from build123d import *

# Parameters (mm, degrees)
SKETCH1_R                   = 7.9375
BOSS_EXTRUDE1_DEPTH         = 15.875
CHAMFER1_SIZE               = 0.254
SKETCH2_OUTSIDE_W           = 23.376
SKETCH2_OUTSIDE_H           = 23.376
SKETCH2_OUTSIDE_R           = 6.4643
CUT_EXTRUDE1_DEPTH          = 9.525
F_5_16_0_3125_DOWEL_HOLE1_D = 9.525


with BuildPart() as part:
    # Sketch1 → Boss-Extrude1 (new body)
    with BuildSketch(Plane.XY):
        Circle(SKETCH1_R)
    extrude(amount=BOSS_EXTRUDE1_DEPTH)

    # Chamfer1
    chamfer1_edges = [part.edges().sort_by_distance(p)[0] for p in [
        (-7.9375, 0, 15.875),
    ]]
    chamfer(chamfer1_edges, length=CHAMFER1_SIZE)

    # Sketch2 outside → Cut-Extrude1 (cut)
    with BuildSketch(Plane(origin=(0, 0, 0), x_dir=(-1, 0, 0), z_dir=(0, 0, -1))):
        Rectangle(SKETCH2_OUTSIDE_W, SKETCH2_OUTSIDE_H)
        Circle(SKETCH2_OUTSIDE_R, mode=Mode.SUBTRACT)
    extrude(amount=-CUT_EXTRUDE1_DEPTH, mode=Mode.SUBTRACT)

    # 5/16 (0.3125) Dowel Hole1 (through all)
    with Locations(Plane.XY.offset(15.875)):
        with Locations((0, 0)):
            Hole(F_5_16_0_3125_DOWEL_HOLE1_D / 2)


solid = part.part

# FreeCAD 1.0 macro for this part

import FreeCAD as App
import Part
import Sketcher

V = App.Vector
Q = App.Units.Quantity


def edges_at(feature, points):
    """Names of the edges that pass closest to the given points."""
    edges = feature.Shape.Edges
    near = lambda p: min(range(len(edges)), key=lambda i: edges[i].distToShape(Part.Vertex(*p))[0])
    return sorted({f"Edge{near(p) + 1}" for p in points})

doc = App.newDocument("Part")
params = doc.addObject("Spreadsheet::Sheet", "Params")
for row, (alias, value) in enumerate([
    ("sketch1_diameter", "0.625 in"),
    ("pad1_length", "0.625 in"),
    ("chamfer_size", "0.01 in"),
    ("sketch2_diameter", "0.509 in"),
    ("pocket1_length", "0.375 in"),
    ("sketch3_diameter", "0.375 in"),
    ("hole_diameter", "0.375 in"),
], start=1):
    params.set(f"A{row}", alias)
    params.set(f"B{row}", "=" + value)
    params.setAlias(f"B{row}", alias)

body = doc.addObject("PartDesign::Body", "Body")

sketch1 = body.newObject("Sketcher::SketchObject", "Sketch")
sketch1.AttachmentSupport = (doc.getObject("XY_Plane"), [""])
sketch1.MapMode = "FlatFace"
sketch1.addGeometry(Part.Circle(V(0, 0, 0), V(0, 0, 1), 8), False)
sketch1.addConstraint([
    Sketcher.Constraint("Coincident", 0, 3, -1, 1),
    Sketcher.Constraint("Diameter", 0, Q("0.625 in")),
])
sketch1.setExpression("Constraints[1]", "Params.sketch1_diameter")
pad1 = body.newObject("PartDesign::Pad", "Pad")
pad1.Profile = sketch1
pad1.setExpression("Length", "Params.pad1_length")
doc.recompute()

chamfer = body.newObject("PartDesign::Chamfer", "Chamfer")
chamfer.Base = (pad1, edges_at(pad1, [(-7.938, 0, 15.875)]))
chamfer.setExpression("Size", "Params.chamfer_size")

sketch2 = body.newObject("Sketcher::SketchObject", "Sketch001")
sketch2.AttachmentSupport = (doc.getObject("XY_Plane"), [""])
sketch2.MapMode = "FlatFace"
sketch2.addGeometry([
    Part.LineSegment(V(12, 12, 0), V(12, -12, 0)),
    Part.LineSegment(V(12, -12, 0), V(-12, -12, 0)),
    Part.LineSegment(V(-12, -12, 0), V(-12, 12, 0)),
    Part.LineSegment(V(-12, 12, 0), V(12, 12, 0)),
    Part.Circle(V(0, 0, 0), V(0, 0, 1), 6),
], False)
sketch2.addConstraint([
    Sketcher.Constraint("Coincident", 0, 2, 1, 1),
    Sketcher.Constraint("Coincident", 1, 2, 2, 1),
    Sketcher.Constraint("Coincident", 2, 2, 3, 1),
    Sketcher.Constraint("Coincident", 3, 2, 0, 1),
    Sketcher.Constraint("Vertical", 0),
    Sketcher.Constraint("Horizontal", 1),
    Sketcher.Constraint("Vertical", 2),
    Sketcher.Constraint("Horizontal", 3),
    Sketcher.Constraint("Coincident", 4, 3, -1, 1),
    Sketcher.Constraint("Symmetric", 0, 2, 2, 2, -1, 1),
    Sketcher.Constraint("Equal", 3, 0),
    Sketcher.Constraint("Diameter", 4, Q("0.509 in")),
    Sketcher.Constraint("DistanceX", 1, 2, 1, 1, Q("23.376 mm")),
])
sketch2.setExpression("Constraints[11]", "Params.sketch2_diameter")
pocket1 = body.newObject("PartDesign::Pocket", "Pocket")
pocket1.Profile = sketch2
pocket1.setExpression("Length", "Params.pocket1_length")
pocket1.Reversed = True

sketch3 = body.newObject("Sketcher::SketchObject", "Sketch002")
sketch3.AttachmentSupport = (doc.getObject("XY_Plane"), [""])
sketch3.MapMode = "FlatFace"
sketch3.AttachmentOffset = App.Placement(V(0, 0, 0.625 * 25.4), App.Rotation())
sketch3.addGeometry(Part.Circle(V(0, 0, 0), V(0, 0, 1), 4.8), False)
sketch3.addConstraint([
    Sketcher.Constraint("Coincident", 0, 3, -1, 1),
    Sketcher.Constraint("Diameter", 0, Q("0.375 in")),
])
sketch3.setExpression("Constraints[1]", "Params.sketch3_diameter")
doc.recompute()
hole = body.newObject("PartDesign::Hole", "Hole")
hole.Profile = sketch3
hole.ThreadType = "None"
hole.setExpression("Diameter", "Params.hole_diameter")
hole.DepthType = "ThroughAll"

doc.recompute()
